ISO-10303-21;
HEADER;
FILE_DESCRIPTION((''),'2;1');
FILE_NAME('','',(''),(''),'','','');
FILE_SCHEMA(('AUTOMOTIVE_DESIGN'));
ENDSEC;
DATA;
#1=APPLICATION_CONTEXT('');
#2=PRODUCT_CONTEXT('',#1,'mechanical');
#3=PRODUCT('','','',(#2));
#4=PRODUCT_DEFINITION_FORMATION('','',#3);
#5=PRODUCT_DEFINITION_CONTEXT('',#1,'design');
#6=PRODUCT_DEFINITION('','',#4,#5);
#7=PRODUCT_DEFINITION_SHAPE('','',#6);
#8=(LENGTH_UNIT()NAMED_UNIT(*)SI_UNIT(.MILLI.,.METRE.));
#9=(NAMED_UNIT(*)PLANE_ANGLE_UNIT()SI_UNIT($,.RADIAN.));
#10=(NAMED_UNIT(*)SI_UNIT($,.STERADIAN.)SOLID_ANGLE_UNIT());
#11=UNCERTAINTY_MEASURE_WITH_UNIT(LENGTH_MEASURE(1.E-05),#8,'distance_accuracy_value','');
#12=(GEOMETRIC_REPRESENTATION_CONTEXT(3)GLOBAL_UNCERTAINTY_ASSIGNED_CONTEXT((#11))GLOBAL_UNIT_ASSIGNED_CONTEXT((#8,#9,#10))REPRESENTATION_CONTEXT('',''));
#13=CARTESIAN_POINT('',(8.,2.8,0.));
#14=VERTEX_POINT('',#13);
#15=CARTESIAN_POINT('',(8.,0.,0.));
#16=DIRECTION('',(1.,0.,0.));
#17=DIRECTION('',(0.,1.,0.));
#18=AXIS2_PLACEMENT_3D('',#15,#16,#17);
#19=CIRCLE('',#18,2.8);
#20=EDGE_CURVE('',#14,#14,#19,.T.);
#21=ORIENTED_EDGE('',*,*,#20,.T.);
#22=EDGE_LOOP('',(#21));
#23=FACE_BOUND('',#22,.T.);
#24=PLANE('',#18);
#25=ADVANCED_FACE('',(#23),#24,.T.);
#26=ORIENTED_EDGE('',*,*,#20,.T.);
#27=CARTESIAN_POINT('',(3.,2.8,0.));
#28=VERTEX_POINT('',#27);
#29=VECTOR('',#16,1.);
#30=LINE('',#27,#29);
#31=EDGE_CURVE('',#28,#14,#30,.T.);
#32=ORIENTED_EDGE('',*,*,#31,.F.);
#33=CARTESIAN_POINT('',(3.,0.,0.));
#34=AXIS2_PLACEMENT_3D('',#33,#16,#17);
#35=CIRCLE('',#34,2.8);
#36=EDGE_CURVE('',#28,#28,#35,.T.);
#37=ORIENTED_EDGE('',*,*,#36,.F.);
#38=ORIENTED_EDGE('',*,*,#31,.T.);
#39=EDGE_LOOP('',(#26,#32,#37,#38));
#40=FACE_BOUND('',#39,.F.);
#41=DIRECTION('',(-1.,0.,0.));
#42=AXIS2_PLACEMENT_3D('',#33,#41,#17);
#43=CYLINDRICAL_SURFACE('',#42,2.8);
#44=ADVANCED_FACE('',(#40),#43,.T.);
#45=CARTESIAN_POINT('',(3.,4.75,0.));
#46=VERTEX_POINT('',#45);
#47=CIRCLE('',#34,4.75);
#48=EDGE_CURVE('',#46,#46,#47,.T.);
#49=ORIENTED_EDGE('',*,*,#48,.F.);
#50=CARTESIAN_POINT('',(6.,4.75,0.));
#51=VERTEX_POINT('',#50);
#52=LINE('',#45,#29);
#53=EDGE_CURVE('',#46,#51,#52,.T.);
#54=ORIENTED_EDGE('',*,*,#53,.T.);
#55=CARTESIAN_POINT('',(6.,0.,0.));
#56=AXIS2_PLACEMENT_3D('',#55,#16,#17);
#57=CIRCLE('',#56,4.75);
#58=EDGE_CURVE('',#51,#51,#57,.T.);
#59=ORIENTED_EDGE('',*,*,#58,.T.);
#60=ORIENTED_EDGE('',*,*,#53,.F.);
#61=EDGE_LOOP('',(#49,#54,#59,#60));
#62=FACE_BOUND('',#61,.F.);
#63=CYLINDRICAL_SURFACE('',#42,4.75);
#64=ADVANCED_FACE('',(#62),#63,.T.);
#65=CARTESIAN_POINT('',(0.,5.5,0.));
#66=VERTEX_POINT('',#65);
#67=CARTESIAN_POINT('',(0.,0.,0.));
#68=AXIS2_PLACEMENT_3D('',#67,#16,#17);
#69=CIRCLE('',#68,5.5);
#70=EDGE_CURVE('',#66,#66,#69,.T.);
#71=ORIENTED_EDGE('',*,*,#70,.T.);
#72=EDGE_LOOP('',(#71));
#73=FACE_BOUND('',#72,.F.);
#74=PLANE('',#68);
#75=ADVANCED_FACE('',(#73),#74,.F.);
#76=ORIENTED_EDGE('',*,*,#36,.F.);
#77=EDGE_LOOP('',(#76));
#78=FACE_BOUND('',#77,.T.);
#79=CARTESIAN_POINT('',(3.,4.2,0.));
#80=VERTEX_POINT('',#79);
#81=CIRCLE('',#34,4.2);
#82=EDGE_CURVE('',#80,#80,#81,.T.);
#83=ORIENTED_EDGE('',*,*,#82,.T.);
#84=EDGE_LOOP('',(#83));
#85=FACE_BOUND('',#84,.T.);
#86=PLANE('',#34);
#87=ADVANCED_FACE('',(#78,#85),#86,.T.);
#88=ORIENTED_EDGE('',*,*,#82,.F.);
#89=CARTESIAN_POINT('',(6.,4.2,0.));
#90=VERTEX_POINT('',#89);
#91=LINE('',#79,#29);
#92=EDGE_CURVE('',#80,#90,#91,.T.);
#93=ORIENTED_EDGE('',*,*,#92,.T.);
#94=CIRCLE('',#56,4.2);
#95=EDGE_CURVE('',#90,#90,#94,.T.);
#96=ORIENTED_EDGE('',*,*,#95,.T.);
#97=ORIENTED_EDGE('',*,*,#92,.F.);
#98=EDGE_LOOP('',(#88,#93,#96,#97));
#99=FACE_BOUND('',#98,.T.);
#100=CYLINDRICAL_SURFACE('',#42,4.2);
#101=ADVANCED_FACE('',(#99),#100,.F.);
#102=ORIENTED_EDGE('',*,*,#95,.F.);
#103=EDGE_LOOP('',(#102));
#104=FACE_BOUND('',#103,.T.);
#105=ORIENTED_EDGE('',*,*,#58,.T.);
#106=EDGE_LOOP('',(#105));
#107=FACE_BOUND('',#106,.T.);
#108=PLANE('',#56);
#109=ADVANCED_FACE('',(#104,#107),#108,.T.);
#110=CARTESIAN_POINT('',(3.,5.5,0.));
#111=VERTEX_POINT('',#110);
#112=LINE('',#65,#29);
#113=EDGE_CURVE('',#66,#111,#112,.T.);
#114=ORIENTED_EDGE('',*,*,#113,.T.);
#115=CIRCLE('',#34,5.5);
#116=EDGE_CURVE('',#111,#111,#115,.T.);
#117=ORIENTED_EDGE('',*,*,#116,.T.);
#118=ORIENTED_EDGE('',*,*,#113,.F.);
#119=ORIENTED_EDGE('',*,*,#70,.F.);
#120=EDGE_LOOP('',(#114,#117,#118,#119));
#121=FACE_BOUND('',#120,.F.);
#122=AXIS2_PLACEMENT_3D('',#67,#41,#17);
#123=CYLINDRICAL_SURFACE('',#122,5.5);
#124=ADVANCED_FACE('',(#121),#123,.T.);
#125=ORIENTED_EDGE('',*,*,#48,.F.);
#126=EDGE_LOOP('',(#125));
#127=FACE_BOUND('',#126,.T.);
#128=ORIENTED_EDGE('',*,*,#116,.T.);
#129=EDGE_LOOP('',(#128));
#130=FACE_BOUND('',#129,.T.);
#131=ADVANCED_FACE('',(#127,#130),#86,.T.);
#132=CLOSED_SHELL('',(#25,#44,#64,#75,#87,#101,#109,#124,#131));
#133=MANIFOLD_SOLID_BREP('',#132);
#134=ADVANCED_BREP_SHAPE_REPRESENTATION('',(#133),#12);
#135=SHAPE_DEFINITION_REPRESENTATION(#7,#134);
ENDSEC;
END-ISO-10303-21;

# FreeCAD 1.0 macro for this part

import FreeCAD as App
import Part
import Sketcher
Q = App.Units.Quantity

doc = App.newDocument("Part")
body = doc.addObject("PartDesign::Body", "Body")

# Sketch on YZ plane
sketch1 = body.newObject("Sketcher::SketchObject", "Sketch")
sketch1.AttachmentSupport = (doc.getObject("YZ_Plane"), [""])
sketch1.MapMode = "FlatFace"
sketch1.addGeometry(Part.Circle(App.Vector(0, 0, 0), App.Vector(0, 0, 1), 5.5), False)
sketch1.addConstraint(Sketcher.Constraint("Coincident", 0, 3, -1, 1))
sketch1.addConstraint(Sketcher.Constraint("Diameter", 0, Q("11 mm")))
pad1 = body.newObject("PartDesign::Pad", "Pad")
pad1.Profile = sketch1
pad1.Length = 3

# Sketch on YZ plane
sketch2 = body.newObject("Sketcher::SketchObject", "Sketch001")
sketch2.AttachmentSupport = (doc.getObject("YZ_Plane"), [""])
sketch2.MapMode = "FlatFace"
sketch2.AttachmentOffset = App.Placement(App.Vector(0, 0, 3), App.Rotation())
sketch2.addGeometry(Part.Circle(App.Vector(0, 0, 0), App.Vector(0, 0, 1), 2.8), False)
sketch2.addConstraint(Sketcher.Constraint("Coincident", 0, 3, -1, 1))
sketch2.addConstraint(Sketcher.Constraint("Diameter", 0, Q("5.6 mm")))
pad2 = body.newObject("PartDesign::Pad", "Pad001")
pad2.Profile = sketch2
pad2.Length = 5

# Sketch on YZ plane
sketch3 = body.newObject("Sketcher::SketchObject", "Sketch002")
sketch3.AttachmentSupport = (doc.getObject("YZ_Plane"), [""])
sketch3.MapMode = "FlatFace"
sketch3.AttachmentOffset = App.Placement(App.Vector(0, 0, 3), App.Rotation())
sketch3.addGeometry(Part.Circle(App.Vector(0, 0, 0), App.Vector(0, 0, 1), 4.75), False)
sketch3.addGeometry(Part.Circle(App.Vector(0, 0, 0), App.Vector(0, 0, 1), 4.2), False)
sketch3.addConstraint(Sketcher.Constraint("Coincident", 0, 3, -1, 1))
sketch3.addConstraint(Sketcher.Constraint("Coincident", 1, 3, -1, 1))
sketch3.addConstraint(Sketcher.Constraint("Diameter", 0, Q("9.5 mm")))
sketch3.addConstraint(Sketcher.Constraint("Diameter", 1, Q("8.4 mm")))
pad3 = body.newObject("PartDesign::Pad", "Pad002")
pad3.Profile = sketch3
pad3.Length = 3

doc.recompute()
